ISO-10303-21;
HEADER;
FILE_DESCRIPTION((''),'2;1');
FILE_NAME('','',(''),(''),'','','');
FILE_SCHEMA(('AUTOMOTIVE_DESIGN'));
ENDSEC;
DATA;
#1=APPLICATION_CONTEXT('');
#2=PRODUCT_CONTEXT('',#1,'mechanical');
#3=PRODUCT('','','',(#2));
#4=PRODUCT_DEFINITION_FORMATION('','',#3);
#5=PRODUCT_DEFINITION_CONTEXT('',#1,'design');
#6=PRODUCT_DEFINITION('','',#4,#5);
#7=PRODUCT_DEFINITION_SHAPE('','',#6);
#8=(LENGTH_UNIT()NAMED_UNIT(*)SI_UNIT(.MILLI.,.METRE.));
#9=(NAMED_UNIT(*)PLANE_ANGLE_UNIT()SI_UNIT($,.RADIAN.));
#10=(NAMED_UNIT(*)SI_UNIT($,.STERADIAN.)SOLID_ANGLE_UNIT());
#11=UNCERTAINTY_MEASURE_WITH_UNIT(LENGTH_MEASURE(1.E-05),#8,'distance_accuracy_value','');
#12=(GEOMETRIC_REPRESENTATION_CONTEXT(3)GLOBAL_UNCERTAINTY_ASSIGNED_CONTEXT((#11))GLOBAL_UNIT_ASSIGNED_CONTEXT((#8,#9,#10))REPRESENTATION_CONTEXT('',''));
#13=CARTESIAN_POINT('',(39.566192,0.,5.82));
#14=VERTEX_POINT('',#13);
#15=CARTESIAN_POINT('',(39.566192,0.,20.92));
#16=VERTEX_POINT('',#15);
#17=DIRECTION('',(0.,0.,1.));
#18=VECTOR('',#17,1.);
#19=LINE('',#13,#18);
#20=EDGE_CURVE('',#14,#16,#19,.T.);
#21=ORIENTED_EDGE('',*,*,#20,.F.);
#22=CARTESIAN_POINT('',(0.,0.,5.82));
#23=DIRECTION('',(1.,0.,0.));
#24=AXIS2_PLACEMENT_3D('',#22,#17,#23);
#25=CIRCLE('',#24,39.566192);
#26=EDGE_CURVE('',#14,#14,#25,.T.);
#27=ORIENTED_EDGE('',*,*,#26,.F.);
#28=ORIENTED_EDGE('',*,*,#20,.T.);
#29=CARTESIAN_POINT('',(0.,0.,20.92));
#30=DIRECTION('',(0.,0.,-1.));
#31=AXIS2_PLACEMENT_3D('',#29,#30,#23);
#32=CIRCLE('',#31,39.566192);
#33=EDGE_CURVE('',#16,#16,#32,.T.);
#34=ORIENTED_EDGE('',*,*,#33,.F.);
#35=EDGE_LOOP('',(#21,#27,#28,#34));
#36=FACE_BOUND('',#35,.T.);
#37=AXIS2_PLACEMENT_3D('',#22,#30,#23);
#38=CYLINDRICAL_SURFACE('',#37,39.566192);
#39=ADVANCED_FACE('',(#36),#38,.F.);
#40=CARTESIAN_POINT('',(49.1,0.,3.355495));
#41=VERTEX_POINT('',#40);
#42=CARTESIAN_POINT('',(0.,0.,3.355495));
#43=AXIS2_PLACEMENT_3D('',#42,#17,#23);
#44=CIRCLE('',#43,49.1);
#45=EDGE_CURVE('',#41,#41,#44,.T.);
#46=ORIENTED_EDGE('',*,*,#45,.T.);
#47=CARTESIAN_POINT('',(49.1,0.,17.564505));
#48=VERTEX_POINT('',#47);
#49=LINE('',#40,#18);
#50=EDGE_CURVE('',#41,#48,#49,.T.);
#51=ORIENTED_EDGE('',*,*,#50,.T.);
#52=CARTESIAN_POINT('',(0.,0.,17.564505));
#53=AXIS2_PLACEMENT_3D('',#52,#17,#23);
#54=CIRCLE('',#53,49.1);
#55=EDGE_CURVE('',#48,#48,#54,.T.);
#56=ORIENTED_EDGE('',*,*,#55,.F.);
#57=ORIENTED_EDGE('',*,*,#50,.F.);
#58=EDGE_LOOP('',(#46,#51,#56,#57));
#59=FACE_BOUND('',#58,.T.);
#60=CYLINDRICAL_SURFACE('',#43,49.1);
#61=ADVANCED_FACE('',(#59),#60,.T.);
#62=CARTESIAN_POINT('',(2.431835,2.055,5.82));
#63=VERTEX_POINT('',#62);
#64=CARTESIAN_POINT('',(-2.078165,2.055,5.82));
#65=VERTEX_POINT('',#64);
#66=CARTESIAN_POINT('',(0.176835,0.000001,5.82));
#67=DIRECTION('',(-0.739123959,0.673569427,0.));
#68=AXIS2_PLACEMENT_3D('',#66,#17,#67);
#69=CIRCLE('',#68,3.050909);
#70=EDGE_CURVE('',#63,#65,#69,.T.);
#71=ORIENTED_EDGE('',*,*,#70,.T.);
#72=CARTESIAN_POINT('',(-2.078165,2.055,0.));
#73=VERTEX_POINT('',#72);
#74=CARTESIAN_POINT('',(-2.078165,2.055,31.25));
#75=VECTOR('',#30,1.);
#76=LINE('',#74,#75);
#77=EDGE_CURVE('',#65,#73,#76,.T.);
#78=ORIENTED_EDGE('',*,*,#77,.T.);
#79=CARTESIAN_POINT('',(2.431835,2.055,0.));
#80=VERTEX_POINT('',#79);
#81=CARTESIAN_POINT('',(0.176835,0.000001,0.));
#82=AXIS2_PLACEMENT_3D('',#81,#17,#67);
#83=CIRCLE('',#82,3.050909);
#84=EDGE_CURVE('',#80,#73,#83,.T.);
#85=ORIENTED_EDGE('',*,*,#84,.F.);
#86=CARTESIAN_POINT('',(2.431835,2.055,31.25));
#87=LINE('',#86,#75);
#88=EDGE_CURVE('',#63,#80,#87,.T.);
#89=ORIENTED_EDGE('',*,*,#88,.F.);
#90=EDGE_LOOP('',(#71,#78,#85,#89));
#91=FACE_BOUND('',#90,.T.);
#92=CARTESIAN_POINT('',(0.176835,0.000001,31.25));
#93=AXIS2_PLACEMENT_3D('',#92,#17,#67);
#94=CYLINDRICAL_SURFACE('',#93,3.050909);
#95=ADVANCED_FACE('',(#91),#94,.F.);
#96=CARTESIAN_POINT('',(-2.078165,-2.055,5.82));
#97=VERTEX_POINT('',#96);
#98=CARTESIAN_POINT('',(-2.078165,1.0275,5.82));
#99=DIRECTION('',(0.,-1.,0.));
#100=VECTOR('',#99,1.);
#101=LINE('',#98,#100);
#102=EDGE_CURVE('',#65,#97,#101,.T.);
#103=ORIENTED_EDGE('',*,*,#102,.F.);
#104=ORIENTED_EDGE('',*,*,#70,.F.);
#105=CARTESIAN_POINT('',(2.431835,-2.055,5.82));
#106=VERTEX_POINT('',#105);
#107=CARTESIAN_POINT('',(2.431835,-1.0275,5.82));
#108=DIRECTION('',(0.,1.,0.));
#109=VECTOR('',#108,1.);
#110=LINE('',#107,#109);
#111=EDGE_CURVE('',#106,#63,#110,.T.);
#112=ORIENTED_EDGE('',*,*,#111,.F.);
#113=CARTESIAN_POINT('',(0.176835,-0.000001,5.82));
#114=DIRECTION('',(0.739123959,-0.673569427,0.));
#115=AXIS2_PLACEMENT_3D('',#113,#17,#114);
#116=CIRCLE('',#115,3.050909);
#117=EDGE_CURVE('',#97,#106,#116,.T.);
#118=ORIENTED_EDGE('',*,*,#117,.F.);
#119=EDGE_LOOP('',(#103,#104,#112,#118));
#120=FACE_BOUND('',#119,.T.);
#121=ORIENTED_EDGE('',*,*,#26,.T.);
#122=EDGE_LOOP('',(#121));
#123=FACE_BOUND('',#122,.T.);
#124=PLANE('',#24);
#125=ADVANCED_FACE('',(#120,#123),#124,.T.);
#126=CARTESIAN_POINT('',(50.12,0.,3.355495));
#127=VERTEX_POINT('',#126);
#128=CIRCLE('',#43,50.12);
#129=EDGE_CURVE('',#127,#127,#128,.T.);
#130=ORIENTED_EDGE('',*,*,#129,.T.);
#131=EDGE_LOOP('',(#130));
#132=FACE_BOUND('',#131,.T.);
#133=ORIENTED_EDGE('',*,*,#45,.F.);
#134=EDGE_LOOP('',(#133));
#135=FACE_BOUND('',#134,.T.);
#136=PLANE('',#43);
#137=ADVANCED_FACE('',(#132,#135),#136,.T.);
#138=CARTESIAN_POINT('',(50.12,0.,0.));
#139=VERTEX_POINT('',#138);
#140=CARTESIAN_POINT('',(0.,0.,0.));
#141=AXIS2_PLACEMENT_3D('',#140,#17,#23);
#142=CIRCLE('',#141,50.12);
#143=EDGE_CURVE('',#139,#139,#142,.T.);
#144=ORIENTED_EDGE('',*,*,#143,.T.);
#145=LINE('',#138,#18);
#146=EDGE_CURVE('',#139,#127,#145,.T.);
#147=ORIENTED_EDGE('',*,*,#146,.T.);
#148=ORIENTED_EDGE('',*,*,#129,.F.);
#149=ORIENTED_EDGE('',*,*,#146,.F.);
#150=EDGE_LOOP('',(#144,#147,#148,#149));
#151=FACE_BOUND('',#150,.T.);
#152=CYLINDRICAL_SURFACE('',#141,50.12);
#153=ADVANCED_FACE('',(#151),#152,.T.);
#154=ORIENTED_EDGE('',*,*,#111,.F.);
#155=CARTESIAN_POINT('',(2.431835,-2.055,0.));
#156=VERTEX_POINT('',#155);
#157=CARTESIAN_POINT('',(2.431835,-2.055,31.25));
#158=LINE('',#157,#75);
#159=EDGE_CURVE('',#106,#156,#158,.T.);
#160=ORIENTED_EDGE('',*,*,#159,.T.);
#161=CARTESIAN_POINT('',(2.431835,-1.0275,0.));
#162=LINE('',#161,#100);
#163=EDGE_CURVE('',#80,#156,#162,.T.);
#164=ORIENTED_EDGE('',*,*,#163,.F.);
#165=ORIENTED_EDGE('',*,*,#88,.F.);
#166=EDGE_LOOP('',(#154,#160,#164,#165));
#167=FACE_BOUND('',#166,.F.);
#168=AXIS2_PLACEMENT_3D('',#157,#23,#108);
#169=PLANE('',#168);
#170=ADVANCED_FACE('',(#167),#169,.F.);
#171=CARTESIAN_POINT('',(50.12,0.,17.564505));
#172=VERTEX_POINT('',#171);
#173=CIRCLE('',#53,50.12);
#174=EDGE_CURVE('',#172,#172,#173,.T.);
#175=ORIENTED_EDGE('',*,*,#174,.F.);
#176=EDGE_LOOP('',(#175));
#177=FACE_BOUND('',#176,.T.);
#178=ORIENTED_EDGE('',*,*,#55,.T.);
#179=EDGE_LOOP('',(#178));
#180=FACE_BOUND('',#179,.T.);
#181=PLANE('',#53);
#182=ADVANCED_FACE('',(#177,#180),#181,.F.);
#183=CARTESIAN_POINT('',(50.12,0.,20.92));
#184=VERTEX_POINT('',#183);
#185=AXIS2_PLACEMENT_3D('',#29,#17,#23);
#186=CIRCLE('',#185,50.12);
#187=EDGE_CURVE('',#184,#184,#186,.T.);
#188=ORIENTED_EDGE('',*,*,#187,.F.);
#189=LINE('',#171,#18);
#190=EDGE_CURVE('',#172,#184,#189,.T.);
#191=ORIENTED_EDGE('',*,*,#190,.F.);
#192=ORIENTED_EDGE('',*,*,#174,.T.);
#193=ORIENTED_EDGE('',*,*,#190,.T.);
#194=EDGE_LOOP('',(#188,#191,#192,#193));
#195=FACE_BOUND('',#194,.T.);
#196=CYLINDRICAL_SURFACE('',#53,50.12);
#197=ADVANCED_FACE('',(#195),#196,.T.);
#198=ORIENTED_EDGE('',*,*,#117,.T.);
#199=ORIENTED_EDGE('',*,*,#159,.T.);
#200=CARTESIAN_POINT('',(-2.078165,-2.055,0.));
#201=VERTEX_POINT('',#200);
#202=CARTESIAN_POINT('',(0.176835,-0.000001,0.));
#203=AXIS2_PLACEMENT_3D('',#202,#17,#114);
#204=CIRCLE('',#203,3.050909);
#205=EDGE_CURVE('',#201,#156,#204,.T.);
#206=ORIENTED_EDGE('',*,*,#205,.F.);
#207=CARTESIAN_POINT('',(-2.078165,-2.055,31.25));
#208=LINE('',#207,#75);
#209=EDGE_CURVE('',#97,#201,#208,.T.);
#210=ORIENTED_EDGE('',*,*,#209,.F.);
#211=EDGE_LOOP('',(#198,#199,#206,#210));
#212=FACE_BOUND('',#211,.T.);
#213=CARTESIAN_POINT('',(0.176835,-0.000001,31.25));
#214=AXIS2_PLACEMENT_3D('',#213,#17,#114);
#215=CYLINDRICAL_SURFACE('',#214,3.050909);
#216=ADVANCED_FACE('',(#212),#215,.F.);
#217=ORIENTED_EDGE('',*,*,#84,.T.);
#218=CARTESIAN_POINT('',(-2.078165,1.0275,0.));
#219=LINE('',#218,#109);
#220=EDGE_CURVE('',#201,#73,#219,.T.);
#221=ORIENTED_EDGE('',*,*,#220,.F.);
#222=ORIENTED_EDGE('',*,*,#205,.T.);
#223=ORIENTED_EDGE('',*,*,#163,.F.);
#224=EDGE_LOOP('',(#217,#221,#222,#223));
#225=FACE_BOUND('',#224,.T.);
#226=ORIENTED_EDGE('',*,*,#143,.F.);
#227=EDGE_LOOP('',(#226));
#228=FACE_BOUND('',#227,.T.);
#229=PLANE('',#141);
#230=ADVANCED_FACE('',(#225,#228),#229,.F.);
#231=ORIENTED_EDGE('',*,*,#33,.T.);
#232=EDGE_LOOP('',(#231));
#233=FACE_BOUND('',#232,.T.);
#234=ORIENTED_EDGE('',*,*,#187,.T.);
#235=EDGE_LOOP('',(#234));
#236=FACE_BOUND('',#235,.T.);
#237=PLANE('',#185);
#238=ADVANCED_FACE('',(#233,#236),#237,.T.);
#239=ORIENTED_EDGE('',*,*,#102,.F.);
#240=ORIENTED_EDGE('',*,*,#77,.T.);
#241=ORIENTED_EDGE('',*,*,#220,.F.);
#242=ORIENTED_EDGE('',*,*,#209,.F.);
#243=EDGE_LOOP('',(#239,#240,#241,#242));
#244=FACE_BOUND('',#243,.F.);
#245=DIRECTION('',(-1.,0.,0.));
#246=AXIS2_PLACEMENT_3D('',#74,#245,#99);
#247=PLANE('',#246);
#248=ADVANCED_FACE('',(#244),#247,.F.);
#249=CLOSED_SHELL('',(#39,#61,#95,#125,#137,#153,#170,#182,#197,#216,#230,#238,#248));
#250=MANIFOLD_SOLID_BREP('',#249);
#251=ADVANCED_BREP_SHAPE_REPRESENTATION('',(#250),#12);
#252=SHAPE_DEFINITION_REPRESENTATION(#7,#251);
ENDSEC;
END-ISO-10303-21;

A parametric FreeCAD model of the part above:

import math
import FreeCAD as App
import Part
import Sketcher
Q = App.Units.Quantity

doc = App.newDocument("Part")
params = doc.addObject("Spreadsheet::Sheet", "Params")
for row, (alias, value) in enumerate([
    ("sketch1_width", "4.11 mm"),
    ("pad1_length", "40 mm"),
    ("pad2_length", "20 mm"),
    ("sketch3_width", "50.12 mm"),
    ("sketch3_width2", "1.02 mm"),
    ("sketch3_height", "20.92 mm"),
    ("revolution_angle", "360 deg"),
], start=1):
    params.set(f"A{row}", alias)
    params.set(f"B{row}", "=" + value)
    params.setAlias(f"B{row}", alias)

body = doc.addObject("PartDesign::Body", "Body")

sketch1 = body.newObject("Sketcher::SketchObject", "Sketch")
sketch1.AttachmentSupport = (doc.getObject("XZ_Plane"), [""])
sketch1.MapMode = "FlatFace"
sketch1.AttachmentOffset = App.Placement(App.Vector(0, 0, 17.4), App.Rotation())
sketch1.addGeometry([
    Part.LineSegment(App.Vector(-2.1, 2.1, 0), App.Vector(2.1, 2.1, 0)),
    Part.ArcOfCircle(Part.Circle(App.Vector(0, -0.2, 0), App.Vector(0, 0, 1), 3.1), math.radians(-48), math.radians(48)),
    Part.LineSegment(App.Vector(2.1, -2.4, 0), App.Vector(-2.1, -2.4, 0)),
    Part.ArcOfCircle(Part.Circle(App.Vector(0, -0.2, 0), App.Vector(0, 0, 1), 3.1), math.radians(132), math.radians(228)),
], False)
sketch1.addConstraint([
    Sketcher.Constraint("Coincident", 0, 2, 1, 2),
    Sketcher.Constraint("Coincident", 1, 1, 2, 1),
    Sketcher.Constraint("Coincident", 2, 2, 3, 2),
    Sketcher.Constraint("Coincident", 3, 1, 0, 1),
    Sketcher.Constraint("Horizontal", 0),
    Sketcher.Constraint("Horizontal", 2),
    Sketcher.Constraint("Coincident", 3, 3, 1, 3),
    Sketcher.Constraint("Equal", 1, 3),
    Sketcher.Constraint("PointOnObject", 1, 3, -2),
    Sketcher.Constraint("Vertical", 0, 2, 1, 1),
    Sketcher.Constraint("DistanceX", 0, 1, 0, 2, Q("4.11 mm")),
    Sketcher.Constraint("Radius", 1, Q("3.050909 mm")),
    Sketcher.Constraint("DistanceY", 1, 3, -1, 1, Q("0.176835 mm")),
])
sketch1.setExpression("Constraints[10]", "Params.sketch1_width")
pad1 = body.newObject("PartDesign::Pad", "Pad")
pad1.Profile = sketch1
pad1.setExpression("Length", "Params.pad1_length")
pad1.Reversed = True
body2 = doc.addObject("PartDesign::Body", "Body001")
doc.recompute()

body.Placement = App.Placement(App.Vector(0, 0, 0), App.Rotation(App.Vector(1, 0, 0), 270))
boolean = body2.newObject("PartDesign::Boolean", "Boolean")
boolean.Type = "Fuse"
boolean.addObjects([body])
body3 = doc.addObject("PartDesign::Body", "Body002")
doc.recompute()

body2.Placement = App.Placement(App.Vector(0, 0, 13.85), App.Rotation(App.Vector(0, 0, 1), 90))
boolean2 = body3.newObject("PartDesign::Boolean", "Boolean001")
boolean2.Type = "Fuse"
boolean2.addObjects([body2])
body4 = doc.addObject("PartDesign::Body", "Body003")

sketch2 = body4.newObject("Sketcher::SketchObject", "Sketch001")
sketch2.AttachmentSupport = (doc.getObject("XY_Plane003"), [""])
sketch2.MapMode = "FlatFace"
sketch2.AttachmentOffset = App.Placement(App.Vector(0, 0, 20.92), App.Rotation())
sketch2.addGeometry(Part.Circle(App.Vector(0, 0, 0), App.Vector(0, 0, 1), 40), False)
sketch2.addConstraint([
    Sketcher.Constraint("Coincident", 0, 3, -1, 1),
    Sketcher.Constraint("Diameter", 0, Q("79.132384 mm")),
])
pad2 = body4.newObject("PartDesign::Pad", "Pad001")
pad2.Profile = sketch2
pad2.setExpression("Length", "Params.pad2_length")
body5 = doc.addObject("PartDesign::Body", "Body004")
doc.recompute()

body4.Placement = App.Placement(App.Vector(0, 0, -15.1), App.Rotation(App.Vector(0, 0, 1), 0))
boolean3 = body5.newObject("PartDesign::Boolean", "Boolean002")
boolean3.Type = "Fuse"
boolean3.addObjects([body4])
body6 = doc.addObject("PartDesign::Body", "Body005")

sketch3 = body6.newObject("Sketcher::SketchObject", "Sketch002")
sketch3.AttachmentSupport = (doc.getObject("XZ_Plane005"), [""])
sketch3.MapMode = "FlatFace"
sketch3.addGeometry([
    Part.LineSegment(App.Vector(0, 0, 0), App.Vector(50.1, 0, 0)),
    Part.LineSegment(App.Vector(50.1, 0, 0), App.Vector(50.1, 3.4, 0)),
    Part.LineSegment(App.Vector(50.1, 3.4, 0), App.Vector(49.1, 3.4, 0)),
    Part.LineSegment(App.Vector(49.1, 3.4, 0), App.Vector(49.1, 17.6, 0)),
    Part.LineSegment(App.Vector(49.1, 17.6, 0), App.Vector(50.1, 17.6, 0)),
    Part.LineSegment(App.Vector(50.1, 17.6, 0), App.Vector(50.1, 20.9, 0)),
    Part.LineSegment(App.Vector(50.1, 20.9, 0), App.Vector(0, 20.9, 0)),
    Part.LineSegment(App.Vector(0, 20.9, 0), App.Vector(0, 0, 0)),
], False)
sketch3.addConstraint([
    Sketcher.Constraint("Coincident", 0, 2, 1, 1),
    Sketcher.Constraint("Coincident", 1, 2, 2, 1),
    Sketcher.Constraint("Coincident", 2, 2, 3, 1),
    Sketcher.Constraint("Coincident", 3, 2, 4, 1),
    Sketcher.Constraint("Coincident", 4, 2, 5, 1),
    Sketcher.Constraint("Coincident", 5, 2, 6, 1),
    Sketcher.Constraint("Coincident", 6, 2, 7, 1),
    Sketcher.Constraint("Coincident", 7, 2, 0, 1),
    Sketcher.Constraint("Horizontal", 0),
    Sketcher.Constraint("Vertical", 1),
    Sketcher.Constraint("Horizontal", 2),
    Sketcher.Constraint("Vertical", 3),
    Sketcher.Constraint("Horizontal", 4),
    Sketcher.Constraint("Vertical", 5),
    Sketcher.Constraint("Horizontal", 6),
    Sketcher.Constraint("Vertical", 7),
    Sketcher.Constraint("Coincident", 7, 2, -1, 1),
    Sketcher.Constraint("Vertical", 1, 2, 4, 2),
    Sketcher.Constraint("Equal", 1, 5),
    Sketcher.Constraint("DistanceX", 0, 1, 0, 2, Q("50.12 mm")),
    Sketcher.Constraint("DistanceX", 2, 2, 2, 1, Q("1.02 mm")),
    Sketcher.Constraint("DistanceY", 7, 2, 7, 1, Q("20.92 mm")),
    Sketcher.Constraint("DistanceY", 3, 1, 3, 2, Q("14.20901 mm")),
])
sketch3.setExpression("Constraints[19]", "Params.sketch3_width")
sketch3.setExpression("Constraints[20]", "Params.sketch3_width2")
sketch3.setExpression("Constraints[21]", "Params.sketch3_height")
revolution = body6.newObject("PartDesign::Revolution", "Revolution")
revolution.Profile = sketch3
revolution.ReferenceAxis = (sketch3, ["V_Axis"])
revolution.setExpression("Angle", "Params.revolution_angle")
doc.recompute()

boolean4 = body6.newObject("PartDesign::Boolean", "Boolean003")
boolean4.Type = "Cut"
boolean4.addObjects([body5])
doc.recompute()

boolean5 = body6.newObject("PartDesign::Boolean", "Boolean004")
boolean5.Type = "Cut"
boolean5.addObjects([body3])

doc.recompute()
